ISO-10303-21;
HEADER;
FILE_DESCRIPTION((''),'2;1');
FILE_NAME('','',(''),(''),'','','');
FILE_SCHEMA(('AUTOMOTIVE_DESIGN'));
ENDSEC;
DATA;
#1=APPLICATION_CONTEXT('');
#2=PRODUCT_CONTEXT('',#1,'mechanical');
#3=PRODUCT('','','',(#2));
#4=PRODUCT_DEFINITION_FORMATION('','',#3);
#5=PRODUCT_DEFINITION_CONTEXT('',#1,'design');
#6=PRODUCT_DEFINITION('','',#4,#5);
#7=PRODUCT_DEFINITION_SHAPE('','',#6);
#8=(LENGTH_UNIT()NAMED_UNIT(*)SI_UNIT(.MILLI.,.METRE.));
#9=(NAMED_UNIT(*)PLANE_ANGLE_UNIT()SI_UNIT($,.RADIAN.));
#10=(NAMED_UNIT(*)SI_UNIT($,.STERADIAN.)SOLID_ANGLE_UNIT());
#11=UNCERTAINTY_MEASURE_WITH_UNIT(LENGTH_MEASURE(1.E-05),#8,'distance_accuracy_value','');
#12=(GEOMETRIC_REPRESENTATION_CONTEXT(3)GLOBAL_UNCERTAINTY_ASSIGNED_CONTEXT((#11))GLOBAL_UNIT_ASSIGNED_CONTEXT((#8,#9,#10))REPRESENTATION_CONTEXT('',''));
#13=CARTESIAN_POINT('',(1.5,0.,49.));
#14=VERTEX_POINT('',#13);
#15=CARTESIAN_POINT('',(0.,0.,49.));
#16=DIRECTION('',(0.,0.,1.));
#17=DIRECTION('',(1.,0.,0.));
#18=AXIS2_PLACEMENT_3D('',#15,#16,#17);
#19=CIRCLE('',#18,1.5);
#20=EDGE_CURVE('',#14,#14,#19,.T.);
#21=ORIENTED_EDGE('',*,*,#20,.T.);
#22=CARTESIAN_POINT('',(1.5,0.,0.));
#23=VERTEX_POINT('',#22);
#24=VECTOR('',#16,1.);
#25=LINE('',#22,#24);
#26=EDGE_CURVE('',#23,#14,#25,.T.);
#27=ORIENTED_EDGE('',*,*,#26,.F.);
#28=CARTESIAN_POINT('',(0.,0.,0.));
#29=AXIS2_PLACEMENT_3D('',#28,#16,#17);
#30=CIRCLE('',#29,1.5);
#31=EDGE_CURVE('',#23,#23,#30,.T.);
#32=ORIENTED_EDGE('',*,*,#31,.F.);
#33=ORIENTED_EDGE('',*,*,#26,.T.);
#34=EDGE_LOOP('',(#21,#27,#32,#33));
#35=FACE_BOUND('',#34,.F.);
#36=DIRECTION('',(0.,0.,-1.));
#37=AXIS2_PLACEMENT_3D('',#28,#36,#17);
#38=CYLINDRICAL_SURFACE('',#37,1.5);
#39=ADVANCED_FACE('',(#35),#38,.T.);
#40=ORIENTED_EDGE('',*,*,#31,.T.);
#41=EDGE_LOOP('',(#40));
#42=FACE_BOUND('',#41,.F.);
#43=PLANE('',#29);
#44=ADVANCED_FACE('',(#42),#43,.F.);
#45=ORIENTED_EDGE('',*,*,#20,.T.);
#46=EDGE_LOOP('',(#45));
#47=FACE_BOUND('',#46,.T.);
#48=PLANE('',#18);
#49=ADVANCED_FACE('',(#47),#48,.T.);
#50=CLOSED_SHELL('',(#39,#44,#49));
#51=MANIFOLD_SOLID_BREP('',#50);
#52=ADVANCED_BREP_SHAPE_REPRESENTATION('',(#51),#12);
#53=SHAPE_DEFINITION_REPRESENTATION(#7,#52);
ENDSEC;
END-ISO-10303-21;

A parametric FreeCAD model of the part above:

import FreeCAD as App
import Part
import Sketcher

V = App.Vector

doc = App.newDocument("Part")
body = doc.addObject("PartDesign::Body", "Body")

sketch1 = doc.addObject("Sketcher::SketchObject", "Sketch")
body.addObject(sketch1)
sketch1.AttachmentSupport = (doc.XY_Plane, [""])
sketch1.MapMode = "FlatFace"
sketch1.addGeometry(Part.Circle(V(0, 0, 0), V(0, 0, 1), 1.5), False)
sketch1.addConstraint(Sketcher.Constraint("Coincident", 0, 3, -1, 1))
sketch1.addConstraint(Sketcher.Constraint("Diameter", 0, 3.0))
pad1 = doc.addObject("PartDesign::Pad", "Pad")
body.addObject(pad1)
pad1.Profile = sketch1
pad1.Length = 49

doc.recompute()
